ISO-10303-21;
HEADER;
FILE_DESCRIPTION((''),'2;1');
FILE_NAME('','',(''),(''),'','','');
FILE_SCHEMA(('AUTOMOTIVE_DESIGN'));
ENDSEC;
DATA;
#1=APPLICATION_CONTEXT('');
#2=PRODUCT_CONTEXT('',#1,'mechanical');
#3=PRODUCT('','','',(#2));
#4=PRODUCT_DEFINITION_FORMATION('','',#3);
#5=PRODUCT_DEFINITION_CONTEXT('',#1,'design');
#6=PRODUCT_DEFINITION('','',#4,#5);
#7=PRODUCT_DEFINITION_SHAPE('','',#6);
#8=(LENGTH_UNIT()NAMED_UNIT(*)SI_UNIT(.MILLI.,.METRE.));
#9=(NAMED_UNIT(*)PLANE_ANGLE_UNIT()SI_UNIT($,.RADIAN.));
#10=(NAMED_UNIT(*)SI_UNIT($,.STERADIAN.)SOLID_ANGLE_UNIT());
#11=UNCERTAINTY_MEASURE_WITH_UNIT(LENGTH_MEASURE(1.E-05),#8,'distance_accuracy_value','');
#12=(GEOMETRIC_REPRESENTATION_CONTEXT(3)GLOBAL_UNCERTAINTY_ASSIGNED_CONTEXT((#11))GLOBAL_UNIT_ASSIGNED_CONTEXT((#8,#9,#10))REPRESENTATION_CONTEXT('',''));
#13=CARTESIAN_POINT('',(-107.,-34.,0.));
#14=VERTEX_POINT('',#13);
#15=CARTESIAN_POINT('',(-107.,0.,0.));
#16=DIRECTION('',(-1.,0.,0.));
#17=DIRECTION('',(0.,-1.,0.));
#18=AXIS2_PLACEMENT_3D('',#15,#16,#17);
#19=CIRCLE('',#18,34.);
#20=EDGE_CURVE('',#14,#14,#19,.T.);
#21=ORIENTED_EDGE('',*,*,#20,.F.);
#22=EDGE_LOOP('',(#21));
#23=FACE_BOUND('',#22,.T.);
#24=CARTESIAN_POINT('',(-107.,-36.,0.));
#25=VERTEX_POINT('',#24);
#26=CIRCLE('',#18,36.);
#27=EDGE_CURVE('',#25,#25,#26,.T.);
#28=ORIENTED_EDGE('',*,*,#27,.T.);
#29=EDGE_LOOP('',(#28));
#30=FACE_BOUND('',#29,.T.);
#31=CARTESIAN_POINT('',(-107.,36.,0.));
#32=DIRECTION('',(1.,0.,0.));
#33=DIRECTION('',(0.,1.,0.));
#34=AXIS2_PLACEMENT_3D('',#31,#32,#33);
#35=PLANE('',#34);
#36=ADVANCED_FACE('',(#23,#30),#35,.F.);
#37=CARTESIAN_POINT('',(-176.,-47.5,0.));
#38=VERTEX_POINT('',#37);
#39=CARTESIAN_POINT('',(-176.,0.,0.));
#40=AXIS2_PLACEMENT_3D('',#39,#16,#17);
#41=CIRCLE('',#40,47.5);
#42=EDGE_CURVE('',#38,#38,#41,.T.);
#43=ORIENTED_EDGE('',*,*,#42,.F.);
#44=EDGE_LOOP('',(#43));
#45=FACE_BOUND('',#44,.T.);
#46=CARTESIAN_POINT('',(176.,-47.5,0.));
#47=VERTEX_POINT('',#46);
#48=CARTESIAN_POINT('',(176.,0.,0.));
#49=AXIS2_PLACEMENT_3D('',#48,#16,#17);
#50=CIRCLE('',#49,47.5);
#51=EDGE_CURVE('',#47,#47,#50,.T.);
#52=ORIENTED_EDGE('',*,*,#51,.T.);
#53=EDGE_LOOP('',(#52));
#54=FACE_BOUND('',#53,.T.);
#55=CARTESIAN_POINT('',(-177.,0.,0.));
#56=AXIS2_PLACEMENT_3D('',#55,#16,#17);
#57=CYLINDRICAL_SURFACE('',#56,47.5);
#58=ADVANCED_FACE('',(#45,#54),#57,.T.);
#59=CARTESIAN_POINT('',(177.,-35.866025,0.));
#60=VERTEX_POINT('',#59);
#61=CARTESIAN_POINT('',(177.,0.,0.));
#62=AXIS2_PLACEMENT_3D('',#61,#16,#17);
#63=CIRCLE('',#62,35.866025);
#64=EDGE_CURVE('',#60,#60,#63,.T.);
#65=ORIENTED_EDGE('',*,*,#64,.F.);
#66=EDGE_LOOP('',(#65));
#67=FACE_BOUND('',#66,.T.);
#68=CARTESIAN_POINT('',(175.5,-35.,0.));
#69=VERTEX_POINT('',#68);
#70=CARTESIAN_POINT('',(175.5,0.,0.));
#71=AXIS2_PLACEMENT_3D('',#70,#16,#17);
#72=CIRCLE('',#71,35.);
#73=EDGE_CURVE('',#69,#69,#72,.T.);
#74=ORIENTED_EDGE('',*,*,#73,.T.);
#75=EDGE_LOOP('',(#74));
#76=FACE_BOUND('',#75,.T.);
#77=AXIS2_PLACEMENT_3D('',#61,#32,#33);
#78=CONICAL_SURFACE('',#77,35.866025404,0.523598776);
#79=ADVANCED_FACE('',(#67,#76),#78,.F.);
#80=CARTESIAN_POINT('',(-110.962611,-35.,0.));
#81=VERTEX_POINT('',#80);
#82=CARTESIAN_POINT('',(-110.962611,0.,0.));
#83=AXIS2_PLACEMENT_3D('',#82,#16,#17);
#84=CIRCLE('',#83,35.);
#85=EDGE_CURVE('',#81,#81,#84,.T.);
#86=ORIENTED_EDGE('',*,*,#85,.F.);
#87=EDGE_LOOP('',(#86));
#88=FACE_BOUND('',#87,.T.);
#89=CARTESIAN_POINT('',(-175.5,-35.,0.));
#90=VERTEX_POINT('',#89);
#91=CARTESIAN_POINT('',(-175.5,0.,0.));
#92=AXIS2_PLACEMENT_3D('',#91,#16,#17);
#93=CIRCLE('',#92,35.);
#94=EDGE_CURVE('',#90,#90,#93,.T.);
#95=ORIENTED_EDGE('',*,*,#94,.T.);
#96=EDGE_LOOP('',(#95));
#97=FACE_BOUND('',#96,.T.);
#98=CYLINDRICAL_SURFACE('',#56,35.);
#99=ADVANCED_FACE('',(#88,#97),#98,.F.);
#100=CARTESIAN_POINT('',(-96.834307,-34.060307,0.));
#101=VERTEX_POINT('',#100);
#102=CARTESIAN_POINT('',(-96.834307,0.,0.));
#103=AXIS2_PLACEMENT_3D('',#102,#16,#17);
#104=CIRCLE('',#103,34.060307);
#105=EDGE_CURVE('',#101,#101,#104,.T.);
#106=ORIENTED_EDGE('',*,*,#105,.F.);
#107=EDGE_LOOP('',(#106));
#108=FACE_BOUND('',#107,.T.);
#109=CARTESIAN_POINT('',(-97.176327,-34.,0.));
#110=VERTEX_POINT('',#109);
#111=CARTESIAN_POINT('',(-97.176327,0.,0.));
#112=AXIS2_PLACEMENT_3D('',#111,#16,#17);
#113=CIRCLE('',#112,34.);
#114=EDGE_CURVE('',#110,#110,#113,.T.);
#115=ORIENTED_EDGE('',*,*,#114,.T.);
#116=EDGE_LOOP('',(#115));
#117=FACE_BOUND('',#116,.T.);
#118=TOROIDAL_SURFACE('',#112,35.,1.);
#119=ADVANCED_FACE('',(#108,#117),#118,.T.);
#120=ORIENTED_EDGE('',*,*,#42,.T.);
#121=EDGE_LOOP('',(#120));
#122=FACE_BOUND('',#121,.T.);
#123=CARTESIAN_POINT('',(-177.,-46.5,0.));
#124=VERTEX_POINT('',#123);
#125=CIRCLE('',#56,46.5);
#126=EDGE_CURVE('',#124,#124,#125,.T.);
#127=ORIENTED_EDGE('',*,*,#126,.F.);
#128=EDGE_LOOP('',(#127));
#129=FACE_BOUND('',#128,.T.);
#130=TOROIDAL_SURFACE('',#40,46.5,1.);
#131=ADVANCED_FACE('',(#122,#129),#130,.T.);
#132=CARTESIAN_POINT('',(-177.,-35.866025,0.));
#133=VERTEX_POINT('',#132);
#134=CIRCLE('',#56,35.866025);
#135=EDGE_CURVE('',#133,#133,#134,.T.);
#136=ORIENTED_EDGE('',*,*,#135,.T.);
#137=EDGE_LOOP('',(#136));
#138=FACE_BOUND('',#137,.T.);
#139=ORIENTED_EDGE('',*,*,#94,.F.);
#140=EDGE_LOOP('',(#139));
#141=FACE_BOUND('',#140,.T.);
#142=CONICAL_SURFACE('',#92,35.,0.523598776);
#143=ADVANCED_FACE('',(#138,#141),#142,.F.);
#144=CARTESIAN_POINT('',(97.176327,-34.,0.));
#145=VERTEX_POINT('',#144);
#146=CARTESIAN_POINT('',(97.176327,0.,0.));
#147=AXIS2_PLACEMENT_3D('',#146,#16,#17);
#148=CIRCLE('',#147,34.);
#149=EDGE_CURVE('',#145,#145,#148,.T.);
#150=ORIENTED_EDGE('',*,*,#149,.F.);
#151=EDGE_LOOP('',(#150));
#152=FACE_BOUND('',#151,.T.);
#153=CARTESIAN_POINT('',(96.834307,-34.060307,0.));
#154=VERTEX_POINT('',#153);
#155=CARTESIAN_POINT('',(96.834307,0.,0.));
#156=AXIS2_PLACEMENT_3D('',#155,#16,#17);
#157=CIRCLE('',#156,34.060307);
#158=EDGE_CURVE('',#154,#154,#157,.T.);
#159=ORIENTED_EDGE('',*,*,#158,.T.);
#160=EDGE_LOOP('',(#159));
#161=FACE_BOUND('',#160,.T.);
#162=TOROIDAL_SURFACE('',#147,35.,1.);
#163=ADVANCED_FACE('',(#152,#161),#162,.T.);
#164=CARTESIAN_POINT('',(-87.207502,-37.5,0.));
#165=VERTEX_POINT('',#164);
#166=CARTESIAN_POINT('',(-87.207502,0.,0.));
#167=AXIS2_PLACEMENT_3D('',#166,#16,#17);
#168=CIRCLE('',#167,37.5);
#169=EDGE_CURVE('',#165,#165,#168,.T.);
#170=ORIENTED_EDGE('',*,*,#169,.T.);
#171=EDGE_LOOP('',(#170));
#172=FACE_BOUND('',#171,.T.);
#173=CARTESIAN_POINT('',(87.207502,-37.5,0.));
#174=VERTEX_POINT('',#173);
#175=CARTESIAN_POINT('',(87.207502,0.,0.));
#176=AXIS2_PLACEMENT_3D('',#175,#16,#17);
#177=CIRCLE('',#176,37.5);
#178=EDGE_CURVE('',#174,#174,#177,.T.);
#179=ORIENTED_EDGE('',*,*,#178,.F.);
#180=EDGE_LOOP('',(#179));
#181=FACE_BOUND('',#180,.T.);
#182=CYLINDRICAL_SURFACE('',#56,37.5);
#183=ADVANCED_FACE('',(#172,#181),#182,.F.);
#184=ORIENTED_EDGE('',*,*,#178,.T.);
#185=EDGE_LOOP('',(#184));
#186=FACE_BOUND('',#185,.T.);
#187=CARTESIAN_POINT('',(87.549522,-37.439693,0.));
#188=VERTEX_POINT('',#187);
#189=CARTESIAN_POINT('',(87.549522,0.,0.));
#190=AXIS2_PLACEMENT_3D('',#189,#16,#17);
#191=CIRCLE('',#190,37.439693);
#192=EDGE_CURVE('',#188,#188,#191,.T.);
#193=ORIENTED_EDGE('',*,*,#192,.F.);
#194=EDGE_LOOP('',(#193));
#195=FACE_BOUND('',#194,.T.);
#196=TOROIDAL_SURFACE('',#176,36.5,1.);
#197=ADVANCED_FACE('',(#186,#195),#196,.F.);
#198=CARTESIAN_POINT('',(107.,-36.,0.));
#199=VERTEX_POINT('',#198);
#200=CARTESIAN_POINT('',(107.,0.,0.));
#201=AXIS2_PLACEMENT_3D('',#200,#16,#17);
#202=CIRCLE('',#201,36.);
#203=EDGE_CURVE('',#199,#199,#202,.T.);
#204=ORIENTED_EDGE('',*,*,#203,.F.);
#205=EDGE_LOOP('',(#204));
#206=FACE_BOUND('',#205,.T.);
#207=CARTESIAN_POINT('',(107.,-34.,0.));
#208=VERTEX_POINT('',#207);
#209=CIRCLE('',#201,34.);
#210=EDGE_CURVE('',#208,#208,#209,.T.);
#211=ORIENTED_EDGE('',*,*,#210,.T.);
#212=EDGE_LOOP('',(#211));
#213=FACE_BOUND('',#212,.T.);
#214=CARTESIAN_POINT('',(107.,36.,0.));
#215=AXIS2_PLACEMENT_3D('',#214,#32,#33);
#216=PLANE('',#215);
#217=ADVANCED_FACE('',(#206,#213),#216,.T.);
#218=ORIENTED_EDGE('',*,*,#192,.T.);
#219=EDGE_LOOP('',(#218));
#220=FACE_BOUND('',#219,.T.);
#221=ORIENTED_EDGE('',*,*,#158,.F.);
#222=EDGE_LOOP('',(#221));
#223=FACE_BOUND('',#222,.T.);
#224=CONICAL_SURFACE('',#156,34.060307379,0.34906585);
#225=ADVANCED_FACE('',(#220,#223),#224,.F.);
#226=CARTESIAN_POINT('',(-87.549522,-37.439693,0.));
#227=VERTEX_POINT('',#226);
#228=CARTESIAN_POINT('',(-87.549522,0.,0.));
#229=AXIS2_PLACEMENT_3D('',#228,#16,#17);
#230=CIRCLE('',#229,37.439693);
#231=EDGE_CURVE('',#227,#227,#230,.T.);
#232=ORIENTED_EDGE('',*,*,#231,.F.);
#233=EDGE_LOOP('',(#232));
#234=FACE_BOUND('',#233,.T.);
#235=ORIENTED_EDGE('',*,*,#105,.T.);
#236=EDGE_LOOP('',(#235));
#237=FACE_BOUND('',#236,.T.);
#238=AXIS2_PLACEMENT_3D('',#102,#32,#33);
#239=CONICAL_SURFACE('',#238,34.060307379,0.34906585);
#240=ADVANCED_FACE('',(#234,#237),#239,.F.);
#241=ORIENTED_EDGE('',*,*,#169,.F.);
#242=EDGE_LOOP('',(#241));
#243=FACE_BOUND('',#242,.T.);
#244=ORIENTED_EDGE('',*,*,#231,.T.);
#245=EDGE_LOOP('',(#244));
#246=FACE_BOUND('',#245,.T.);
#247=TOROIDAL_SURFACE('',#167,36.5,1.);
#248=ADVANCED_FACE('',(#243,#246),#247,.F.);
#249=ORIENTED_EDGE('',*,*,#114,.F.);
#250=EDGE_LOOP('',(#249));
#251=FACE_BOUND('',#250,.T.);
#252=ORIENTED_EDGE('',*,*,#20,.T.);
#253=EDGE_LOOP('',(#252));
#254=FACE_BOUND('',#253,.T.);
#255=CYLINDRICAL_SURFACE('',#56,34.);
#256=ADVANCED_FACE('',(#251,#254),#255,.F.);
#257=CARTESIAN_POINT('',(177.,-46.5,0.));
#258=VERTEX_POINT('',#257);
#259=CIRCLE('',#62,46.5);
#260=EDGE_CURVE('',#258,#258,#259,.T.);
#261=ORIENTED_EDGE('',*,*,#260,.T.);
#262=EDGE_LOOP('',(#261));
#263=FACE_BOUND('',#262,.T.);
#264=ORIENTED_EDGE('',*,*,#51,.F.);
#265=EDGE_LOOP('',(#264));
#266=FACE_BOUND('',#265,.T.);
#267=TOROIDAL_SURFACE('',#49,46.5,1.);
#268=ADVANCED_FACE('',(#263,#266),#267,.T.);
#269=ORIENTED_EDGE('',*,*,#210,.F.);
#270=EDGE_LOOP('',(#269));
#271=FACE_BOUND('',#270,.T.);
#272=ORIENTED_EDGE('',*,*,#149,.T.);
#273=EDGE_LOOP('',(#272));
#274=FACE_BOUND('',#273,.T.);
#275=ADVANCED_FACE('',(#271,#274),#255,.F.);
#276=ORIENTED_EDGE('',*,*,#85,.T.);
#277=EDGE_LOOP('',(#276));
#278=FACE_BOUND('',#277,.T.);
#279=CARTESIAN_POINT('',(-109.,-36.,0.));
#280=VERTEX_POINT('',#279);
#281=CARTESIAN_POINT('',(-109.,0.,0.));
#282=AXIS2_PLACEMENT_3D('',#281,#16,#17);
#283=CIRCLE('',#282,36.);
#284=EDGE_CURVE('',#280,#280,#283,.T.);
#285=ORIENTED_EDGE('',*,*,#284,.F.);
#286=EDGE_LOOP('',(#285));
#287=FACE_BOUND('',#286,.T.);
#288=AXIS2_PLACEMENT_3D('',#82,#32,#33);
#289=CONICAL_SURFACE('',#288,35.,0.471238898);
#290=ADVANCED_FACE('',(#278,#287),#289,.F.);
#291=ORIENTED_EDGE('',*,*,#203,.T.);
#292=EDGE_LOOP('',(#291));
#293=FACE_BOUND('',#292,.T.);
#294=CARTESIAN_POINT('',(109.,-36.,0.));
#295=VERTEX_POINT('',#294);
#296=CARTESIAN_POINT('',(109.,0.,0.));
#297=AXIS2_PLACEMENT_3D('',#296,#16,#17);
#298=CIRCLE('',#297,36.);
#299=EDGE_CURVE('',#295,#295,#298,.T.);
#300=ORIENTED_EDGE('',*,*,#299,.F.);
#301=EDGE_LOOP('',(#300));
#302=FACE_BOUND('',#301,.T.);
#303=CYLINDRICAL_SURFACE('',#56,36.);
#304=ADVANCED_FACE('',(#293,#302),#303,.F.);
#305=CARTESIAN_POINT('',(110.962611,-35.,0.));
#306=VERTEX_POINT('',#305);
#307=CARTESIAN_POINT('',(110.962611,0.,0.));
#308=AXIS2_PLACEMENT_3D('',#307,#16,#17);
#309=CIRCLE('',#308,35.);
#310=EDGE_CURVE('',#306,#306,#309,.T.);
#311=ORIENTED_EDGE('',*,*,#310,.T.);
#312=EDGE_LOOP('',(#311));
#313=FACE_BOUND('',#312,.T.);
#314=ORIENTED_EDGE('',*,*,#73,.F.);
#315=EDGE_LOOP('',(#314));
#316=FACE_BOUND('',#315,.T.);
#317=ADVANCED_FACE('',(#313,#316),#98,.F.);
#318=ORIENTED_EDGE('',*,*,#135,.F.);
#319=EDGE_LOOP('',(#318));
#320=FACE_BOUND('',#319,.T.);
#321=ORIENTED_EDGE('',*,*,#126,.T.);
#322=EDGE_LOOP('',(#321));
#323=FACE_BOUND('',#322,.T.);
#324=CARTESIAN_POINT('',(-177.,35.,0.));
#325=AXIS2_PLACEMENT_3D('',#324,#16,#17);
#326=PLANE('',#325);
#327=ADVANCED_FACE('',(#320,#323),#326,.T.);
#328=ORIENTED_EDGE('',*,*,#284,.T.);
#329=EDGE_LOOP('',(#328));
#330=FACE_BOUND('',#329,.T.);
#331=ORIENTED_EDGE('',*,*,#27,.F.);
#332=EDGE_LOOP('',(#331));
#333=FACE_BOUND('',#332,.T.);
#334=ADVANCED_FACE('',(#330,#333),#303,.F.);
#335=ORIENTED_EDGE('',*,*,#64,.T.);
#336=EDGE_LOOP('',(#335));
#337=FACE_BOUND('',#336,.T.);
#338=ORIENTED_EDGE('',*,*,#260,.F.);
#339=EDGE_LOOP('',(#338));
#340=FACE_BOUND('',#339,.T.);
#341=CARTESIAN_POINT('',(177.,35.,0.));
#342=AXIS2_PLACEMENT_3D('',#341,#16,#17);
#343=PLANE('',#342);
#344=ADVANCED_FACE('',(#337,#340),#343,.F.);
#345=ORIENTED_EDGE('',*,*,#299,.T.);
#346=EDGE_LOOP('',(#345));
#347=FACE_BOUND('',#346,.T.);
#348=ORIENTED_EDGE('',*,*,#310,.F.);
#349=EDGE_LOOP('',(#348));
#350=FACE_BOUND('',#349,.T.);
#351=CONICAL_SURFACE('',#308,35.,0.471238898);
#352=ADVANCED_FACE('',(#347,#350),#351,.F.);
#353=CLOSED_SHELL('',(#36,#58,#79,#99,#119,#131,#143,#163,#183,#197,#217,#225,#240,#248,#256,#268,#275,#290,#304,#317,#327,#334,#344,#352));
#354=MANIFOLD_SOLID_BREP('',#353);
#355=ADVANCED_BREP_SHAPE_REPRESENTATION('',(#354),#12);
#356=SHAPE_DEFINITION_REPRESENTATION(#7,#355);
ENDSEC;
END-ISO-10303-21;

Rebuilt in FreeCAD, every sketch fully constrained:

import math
import FreeCAD as App
import Part
import Sketcher

V = App.Vector
Q = App.Units.Quantity

doc = App.newDocument("Part")
body = doc.addObject("PartDesign::Body", "Body")

# Sketch on XY plane
sketch1 = body.newObject("Sketcher::SketchObject", "Sketch")
sketch1.AttachmentSupport = (doc.getObject("XY_Plane"), [""])
sketch1.MapMode = "FlatFace"
sketch1.addGeometry([
    Part.LineSegment(V(-177, 46.5, 0), V(-177, 35, 0)),  # 0
    Part.LineSegment(V(-177, 35, 0), V(-110.96, 35, 0)),  # 1
    Part.LineSegment(V(-110.96, 35, 0), V(-109, 36, 0)),  # 2
    Part.LineSegment(V(-109, 36, 0), V(-107, 36, 0)),  # 3
    Part.LineSegment(V(-107, 36, 0), V(-107, 34, 0)),  # 4
    Part.LineSegment(V(-107, 34, 0), V(-97.18, 34, 0)),  # 5
    Part.ArcOfCircle(Part.Circle(V(-97.18, 35, 0), V(0, 0, 1), 1), math.radians(-90), math.radians(-70)),  # 6
    Part.LineSegment(V(-96.83, 34.06, 0), V(-87.55, 37.44, 0)),  # 7
    Part.ArcOfCircle(Part.Circle(V(-87.21, 36.5, 0), V(0, 0, 1), 1), math.radians(90), math.radians(110)),  # 8
    Part.LineSegment(V(-87.21, 37.5, 0), V(87.21, 37.5, 0)),  # 9
    Part.ArcOfCircle(Part.Circle(V(87.21, 36.5, 0), V(0, 0, 1), 1), math.radians(70), math.radians(90)),  # 10
    Part.LineSegment(V(87.55, 37.44, 0), V(96.83, 34.06, 0)),  # 11
    Part.ArcOfCircle(Part.Circle(V(97.18, 35, 0), V(0, 0, 1), 1), math.radians(-110), math.radians(-90)),  # 12
    Part.LineSegment(V(97.18, 34, 0), V(107, 34, 0)),  # 13
    Part.LineSegment(V(107, 34, 0), V(107, 36, 0)),  # 14
    Part.LineSegment(V(107, 36, 0), V(109, 36, 0)),  # 15
    Part.LineSegment(V(109, 36, 0), V(110.96, 35, 0)),  # 16
    Part.LineSegment(V(110.96, 35, 0), V(177, 35, 0)),  # 17
    Part.LineSegment(V(177, 35, 0), V(177, 46.5, 0)),  # 18
    Part.ArcOfCircle(Part.Circle(V(176, 46.5, 0), V(0, 0, 1), 1), math.radians(0), math.radians(90)),  # 19
    Part.LineSegment(V(176, 47.5, 0), V(-176, 47.5, 0)),  # 20
    Part.ArcOfCircle(Part.Circle(V(-176, 46.5, 0), V(0, 0, 1), 1), math.radians(90), math.radians(180)),  # 21
], False)
sketch1.addConstraint([
    Sketcher.Constraint("Coincident", 0, 2, 1, 1),
    Sketcher.Constraint("Coincident", 1, 2, 2, 1),
    Sketcher.Constraint("Coincident", 2, 2, 3, 1),
    Sketcher.Constraint("Coincident", 3, 2, 4, 1),
    Sketcher.Constraint("Coincident", 4, 2, 5, 1),
    Sketcher.Constraint("Tangent", 5, 2, 6, 1),
    Sketcher.Constraint("Tangent", 6, 2, 7, 1),
    Sketcher.Constraint("Tangent", 7, 2, 8, 2),
    Sketcher.Constraint("Tangent", 8, 1, 9, 1),
    Sketcher.Constraint("Tangent", 9, 2, 10, 2),
    Sketcher.Constraint("Tangent", 10, 1, 11, 1),
    Sketcher.Constraint("Tangent", 11, 2, 12, 1),
    Sketcher.Constraint("Tangent", 12, 2, 13, 1),
    Sketcher.Constraint("Coincident", 13, 2, 14, 1),
    Sketcher.Constraint("Coincident", 14, 2, 15, 1),
    Sketcher.Constraint("Coincident", 15, 2, 16, 1),
    Sketcher.Constraint("Coincident", 16, 2, 17, 1),
    Sketcher.Constraint("Coincident", 17, 2, 18, 1),
    Sketcher.Constraint("Tangent", 18, 2, 19, 1),
    Sketcher.Constraint("Tangent", 19, 2, 20, 1),
    Sketcher.Constraint("Tangent", 20, 2, 21, 1),
    Sketcher.Constraint("Tangent", 21, 2, 0, 1),
    Sketcher.Constraint("Vertical", 0),
    Sketcher.Constraint("Horizontal", 1),
    Sketcher.Constraint("Horizontal", 3),
    Sketcher.Constraint("Vertical", 4),
    Sketcher.Constraint("Horizontal", 5),
    Sketcher.Constraint("Horizontal", 9),
    Sketcher.Constraint("Horizontal", 13),
    Sketcher.Constraint("Vertical", 14),
    Sketcher.Constraint("Horizontal", 15),
    Sketcher.Constraint("Horizontal", 17),
    Sketcher.Constraint("Vertical", 18),
    Sketcher.Constraint("Horizontal", 20),
    Sketcher.Constraint("Equal", 6, 8),
    Sketcher.Constraint("Equal", 8, 10),
    Sketcher.Constraint("Equal", 10, 12),
    Sketcher.Constraint("Equal", 12, 19),
    Sketcher.Constraint("Equal", 19, 21),
    Sketcher.Constraint("Symmetric", 6, 3, 12, 3, -2),
    Sketcher.Constraint("Symmetric", 3, 2, 14, 2, -2),
    Sketcher.Constraint("Symmetric", 1, 2, 16, 2, -2),
    Sketcher.Constraint("Horizontal", 12, 3, 0, 2),
    Sketcher.Constraint("Horizontal", 7, 2, 10, 1),
    Sketcher.Constraint("Equal", 3, 15),
    Sketcher.Constraint("Equal", 1, 17),
    Sketcher.Constraint("Equal", 15, 4),
    Sketcher.Constraint("Radius", 6, 1.0),
    Sketcher.Constraint("DistanceX", 3, 1, 3, 2, 2.0),
    Sketcher.Constraint("DistanceX", 20, 2, 20, 1, 352.0),
    Sketcher.Constraint("Angle", 2, Q("27 deg")),
    Sketcher.Constraint("Angle", 7, Q("20 deg")),
    Sketcher.Constraint("DistanceY", 0, 2, 0, 1, 11.5),
    Sketcher.Constraint("DistanceY", -1, 1, 6, 3, 35.0),
    Sketcher.Constraint("DistanceX", 2, 2, -1, 1, 109.0),
    Sketcher.Constraint("DistanceY", 10, 3, 19, 3, 10.0),
    Sketcher.Constraint("DistanceX", 5, 1, 5, 2, 9.823673),
])
revolution = body.newObject("PartDesign::Revolution", "Revolution")
revolution.Profile = sketch1
revolution.ReferenceAxis = (sketch1, ["H_Axis"])
revolution.Angle = 360

# Sketch on XY plane
sketch2 = body.newObject("Sketcher::SketchObject", "Sketch001")
sketch2.AttachmentSupport = (doc.getObject("XY_Plane"), [""])
sketch2.MapMode = "FlatFace"
sketch2.addGeometry([
    Part.LineSegment(V(-177, 35.9, 0), V(-177, 35, 0)),  # 0
    Part.LineSegment(V(-177, 35, 0), V(-175.5, 35, 0)),  # 1
    Part.LineSegment(V(-175.5, 35, 0), V(-177, 35.9, 0)),  # 2
    Part.LineSegment(V(175.5, 35, 0), V(177, 35, 0)),  # 3
    Part.LineSegment(V(177, 35, 0), V(177, 35.9, 0)),  # 4
    Part.LineSegment(V(177, 35.9, 0), V(175.5, 35, 0)),  # 5
], False)
sketch2.addConstraint([
    Sketcher.Constraint("Coincident", 0, 2, 1, 1),
    Sketcher.Constraint("Coincident", 1, 2, 2, 1),
    Sketcher.Constraint("Coincident", 2, 2, 0, 1),
    Sketcher.Constraint("Coincident", 3, 2, 4, 1),
    Sketcher.Constraint("Coincident", 4, 2, 5, 1),
    Sketcher.Constraint("Coincident", 5, 2, 3, 1),
    Sketcher.Constraint("Vertical", 0),
    Sketcher.Constraint("Horizontal", 1),
    Sketcher.Constraint("Horizontal", 3),
    Sketcher.Constraint("Vertical", 4),
    Sketcher.Constraint("Symmetric", 0, 2, 3, 2, -2),
    Sketcher.Constraint("Horizontal", 2, 2, 4, 2),
    Sketcher.Constraint("Equal", 1, 3),
    Sketcher.Constraint("Angle", 2, Q("150 deg")),
    Sketcher.Constraint("DistanceX", 1, 1, 1, 2, 1.5),
    Sketcher.Constraint("DistanceX", 0, 2, -1, 1, 177.0),
    Sketcher.Constraint("DistanceY", -1, 1, 0, 2, 35.0),
])
groove = body.newObject("PartDesign::Groove", "Groove")
groove.Profile = sketch2
groove.ReferenceAxis = (sketch2, ["H_Axis"])
groove.Angle = 360

doc.recompute()
